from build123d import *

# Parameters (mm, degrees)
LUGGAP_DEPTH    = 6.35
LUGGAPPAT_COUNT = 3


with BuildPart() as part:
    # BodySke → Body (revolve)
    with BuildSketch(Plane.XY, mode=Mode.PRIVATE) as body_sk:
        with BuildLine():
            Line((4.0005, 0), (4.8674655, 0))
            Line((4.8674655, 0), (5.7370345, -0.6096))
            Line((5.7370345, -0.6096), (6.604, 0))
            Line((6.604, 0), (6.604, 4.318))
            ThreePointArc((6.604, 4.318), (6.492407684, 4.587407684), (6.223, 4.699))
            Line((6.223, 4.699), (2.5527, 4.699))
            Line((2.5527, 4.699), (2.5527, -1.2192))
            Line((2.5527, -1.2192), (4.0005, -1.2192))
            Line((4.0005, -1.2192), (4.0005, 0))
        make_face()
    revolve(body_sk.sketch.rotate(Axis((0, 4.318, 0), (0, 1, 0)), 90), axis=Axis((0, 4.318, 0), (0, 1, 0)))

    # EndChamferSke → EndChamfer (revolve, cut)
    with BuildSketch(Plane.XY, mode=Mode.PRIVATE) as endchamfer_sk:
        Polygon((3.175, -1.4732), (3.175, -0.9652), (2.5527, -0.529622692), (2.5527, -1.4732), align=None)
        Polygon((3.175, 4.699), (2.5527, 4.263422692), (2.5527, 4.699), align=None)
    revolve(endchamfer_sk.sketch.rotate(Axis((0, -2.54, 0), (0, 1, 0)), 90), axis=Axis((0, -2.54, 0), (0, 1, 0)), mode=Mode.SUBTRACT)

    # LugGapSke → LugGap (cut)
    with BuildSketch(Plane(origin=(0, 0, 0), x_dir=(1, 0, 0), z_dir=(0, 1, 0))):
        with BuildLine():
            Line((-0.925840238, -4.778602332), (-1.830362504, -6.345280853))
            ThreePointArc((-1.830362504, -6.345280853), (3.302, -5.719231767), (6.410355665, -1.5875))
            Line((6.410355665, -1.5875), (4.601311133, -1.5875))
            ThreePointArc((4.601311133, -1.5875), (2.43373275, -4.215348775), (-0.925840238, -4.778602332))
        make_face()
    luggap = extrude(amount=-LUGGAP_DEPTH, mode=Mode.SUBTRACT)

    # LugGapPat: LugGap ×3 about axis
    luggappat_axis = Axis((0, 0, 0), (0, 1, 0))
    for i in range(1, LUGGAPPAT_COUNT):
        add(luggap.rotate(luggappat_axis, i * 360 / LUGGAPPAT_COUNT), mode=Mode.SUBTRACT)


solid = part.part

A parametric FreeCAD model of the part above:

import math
import FreeCAD as App
import Part
import Sketcher
Q = App.Units.Quantity

doc = App.newDocument("Part")
body = doc.addObject("PartDesign::Body", "Body")

sketch1 = body.newObject("Sketcher::SketchObject", "Sketch")
sketch1.AttachmentSupport = (doc.getObject("XY_Plane"), [""])
sketch1.MapMode = "FlatFace"
sketch1.addGeometry([
    Part.LineSegment(App.Vector(4, 0, 0), App.Vector(4.87, 0, 0)),
    Part.LineSegment(App.Vector(4.87, 0, 0), App.Vector(5.74, -0.61, 0)),
    Part.LineSegment(App.Vector(5.74, -0.61, 0), App.Vector(6.6, 0, 0)),
    Part.LineSegment(App.Vector(6.6, 0, 0), App.Vector(6.6, 4.32, 0)),
    Part.ArcOfCircle(Part.Circle(App.Vector(6.22, 4.32, 0), App.Vector(0, 0, 1), 0.38), math.radians(0), math.radians(90)),
    Part.LineSegment(App.Vector(6.22, 4.7, 0), App.Vector(2.55, 4.7, 0)),
    Part.LineSegment(App.Vector(2.55, 4.7, 0), App.Vector(2.55, -1.22, 0)),
    Part.LineSegment(App.Vector(2.55, -1.22, 0), App.Vector(4, -1.22, 0)),
    Part.LineSegment(App.Vector(4, -1.22, 0), App.Vector(4, 0, 0)),
], False)
sketch1.addConstraint([
    Sketcher.Constraint("Coincident", 0, 2, 1, 1),
    Sketcher.Constraint("Coincident", 1, 2, 2, 1),
    Sketcher.Constraint("Coincident", 2, 2, 3, 1),
    Sketcher.Constraint("Tangent", 3, 2, 4, 1),
    Sketcher.Constraint("Tangent", 4, 2, 5, 1),
    Sketcher.Constraint("Coincident", 5, 2, 6, 1),
    Sketcher.Constraint("Coincident", 6, 2, 7, 1),
    Sketcher.Constraint("Coincident", 7, 2, 8, 1),
    Sketcher.Constraint("Coincident", 8, 2, 0, 1),
    Sketcher.Constraint("Horizontal", 0),
    Sketcher.Constraint("Vertical", 3),
    Sketcher.Constraint("Horizontal", 5),
    Sketcher.Constraint("Vertical", 6),
    Sketcher.Constraint("Horizontal", 7),
    Sketcher.Constraint("Vertical", 8),
    Sketcher.Constraint("PointOnObject", 0, 2, -1),
    Sketcher.Constraint("PointOnObject", 2, 2, -1),
    Sketcher.Constraint("Radius", 4, Q("0.015 in")),
    Sketcher.Constraint("DistanceY", 3, 1, 3, 2, Q("0.17 in")),
    Sketcher.Constraint("DistanceX", 7, 1, 7, 2, Q("0.057 in")),
    Sketcher.Constraint("DistanceY", 6, 2, 6, 1, Q("0.233 in")),
    Sketcher.Constraint("DistanceX", -1, 1, 2, 2, Q("0.26 in")),
    Sketcher.Constraint("DistanceX", 5, 2, 5, 1, Q("0.1445 in")),
    Sketcher.Constraint("DistanceY", 1, 2, -1, 1, Q("0.024 in")),
    Sketcher.Constraint("Distance", 1, 1.061962),
    Sketcher.Constraint("Distance", 2, 1.059831),
])
revolution = body.newObject("PartDesign::Revolution", "Revolution")
revolution.Profile = sketch1
revolution.ReferenceAxis = (sketch1, ["V_Axis"])
revolution.Angle = 360

sketch2 = body.newObject("Sketcher::SketchObject", "Sketch001")
sketch2.AttachmentSupport = (doc.getObject("XY_Plane"), [""])
sketch2.MapMode = "FlatFace"
sketch2.addGeometry([
    Part.LineSegment(App.Vector(3.17, -1.47, 0), App.Vector(3.17, -0.97, 0)),
    Part.LineSegment(App.Vector(3.17, -0.97, 0), App.Vector(2.55, -0.53, 0)),
    Part.LineSegment(App.Vector(2.55, -0.53, 0), App.Vector(2.55, -1.47, 0)),
    Part.LineSegment(App.Vector(2.55, -1.47, 0), App.Vector(3.17, -1.47, 0)),
    Part.LineSegment(App.Vector(2.55, 4.26, 0), App.Vector(3.17, 4.7, 0)),
    Part.LineSegment(App.Vector(3.17, 4.7, 0), App.Vector(2.55, 4.7, 0)),
    Part.LineSegment(App.Vector(2.55, 4.7, 0), App.Vector(2.55, 4.26, 0)),
], False)
sketch2.addConstraint([
    Sketcher.Constraint("Coincident", 0, 2, 1, 1),
    Sketcher.Constraint("Coincident", 1, 2, 2, 1),
    Sketcher.Constraint("Coincident", 2, 2, 3, 1),
    Sketcher.Constraint("Coincident", 3, 2, 0, 1),
    Sketcher.Constraint("Coincident", 4, 2, 5, 1),
    Sketcher.Constraint("Coincident", 5, 2, 6, 1),
    Sketcher.Constraint("Coincident", 6, 2, 4, 1),
    Sketcher.Constraint("Vertical", 0),
    Sketcher.Constraint("Vertical", 2),
    Sketcher.Constraint("Horizontal", 3),
    Sketcher.Constraint("Horizontal", 5),
    Sketcher.Constraint("Vertical", 6),
    Sketcher.Constraint("Vertical", 3, 2, 4, 2),
    Sketcher.Constraint("Vertical", 2, 2, 5, 2),
    Sketcher.Constraint("Equal", 1, 4),
    Sketcher.Constraint("DistanceY", 0, 1, 0, 2, Q("0.02 in")),
    Sketcher.Constraint("Angle", 1, Q("145.01 deg")),
    Sketcher.Constraint("DistanceX", 3, 1, 3, 2, Q("0.0245 in")),
    Sketcher.Constraint("DistanceX", -1, 1, 0, 2, Q("0.125 in")),
    Sketcher.Constraint("DistanceY", 0, 2, -1, 1, Q("0.038 in")),
    Sketcher.Constraint("DistanceY", -1, 1, 4, 2, Q("0.185 in")),
])
groove = body.newObject("PartDesign::Groove", "Groove")
groove.Profile = sketch2
groove.ReferenceAxis = (sketch2, ["V_Axis"])
groove.Angle = 360

sketch3 = body.newObject("Sketcher::SketchObject", "Sketch002")
sketch3.AttachmentSupport = (doc.getObject("XZ_Plane"), [""])
sketch3.MapMode = "FlatFace"
sketch3.addGeometry([
    Part.LineSegment(App.Vector(-0.9, 4.8, 0), App.Vector(-1.8, 6.3, 0)),
    Part.ArcOfCircle(Part.Circle(App.Vector(0, 0, 0), App.Vector(0, 0, 1), 6.6), math.radians(14), math.radians(106)),
    Part.LineSegment(App.Vector(6.4, 1.6, 0), App.Vector(4.6, 1.6, 0)),
    Part.ArcOfCircle(Part.Circle(App.Vector(0, 0, 0), App.Vector(0, 0, 1), 4.9), math.radians(19), math.radians(101)),
], False)
sketch3.addConstraint([
    Sketcher.Constraint("Coincident", 0, 2, 1, 2),
    Sketcher.Constraint("Coincident", 1, 1, 2, 1),
    Sketcher.Constraint("Coincident", 2, 2, 3, 1),
    Sketcher.Constraint("Coincident", 3, 2, 0, 1),
    Sketcher.Constraint("Horizontal", 2),
    Sketcher.Constraint("Coincident", 1, 3, -1, 1),
    Sketcher.Constraint("Coincident", 3, 3, -1, 1),
    Sketcher.Constraint("Radius", 1, Q("0.26 in")),
    Sketcher.Constraint("Angle", 0, Q("120 deg")),
    Sketcher.Constraint("DistanceY", -1, 1, 1, 1, Q("0.0625 in")),
    Sketcher.Constraint("Radius", 3, 4.867465),
    Sketcher.Constraint("DistanceY", -1, 1, 0, 2, 6.345281),
])
pocket1 = body.newObject("PartDesign::Pocket", "Pocket")
pocket1.Profile = sketch3
pocket1.Length = Q("0.25 in")
pocket1.Reversed = True
doc.recompute()

polarpattern = body.newObject("PartDesign::PolarPattern", "PolarPattern")
polarpattern.Originals = [pocket1]
polarpattern.Axis = (doc.getObject("Y_Axis"), [""])
polarpattern.Angle = 360
polarpattern.Occurrences = 3
body.Tip = polarpattern

doc.recompute()
